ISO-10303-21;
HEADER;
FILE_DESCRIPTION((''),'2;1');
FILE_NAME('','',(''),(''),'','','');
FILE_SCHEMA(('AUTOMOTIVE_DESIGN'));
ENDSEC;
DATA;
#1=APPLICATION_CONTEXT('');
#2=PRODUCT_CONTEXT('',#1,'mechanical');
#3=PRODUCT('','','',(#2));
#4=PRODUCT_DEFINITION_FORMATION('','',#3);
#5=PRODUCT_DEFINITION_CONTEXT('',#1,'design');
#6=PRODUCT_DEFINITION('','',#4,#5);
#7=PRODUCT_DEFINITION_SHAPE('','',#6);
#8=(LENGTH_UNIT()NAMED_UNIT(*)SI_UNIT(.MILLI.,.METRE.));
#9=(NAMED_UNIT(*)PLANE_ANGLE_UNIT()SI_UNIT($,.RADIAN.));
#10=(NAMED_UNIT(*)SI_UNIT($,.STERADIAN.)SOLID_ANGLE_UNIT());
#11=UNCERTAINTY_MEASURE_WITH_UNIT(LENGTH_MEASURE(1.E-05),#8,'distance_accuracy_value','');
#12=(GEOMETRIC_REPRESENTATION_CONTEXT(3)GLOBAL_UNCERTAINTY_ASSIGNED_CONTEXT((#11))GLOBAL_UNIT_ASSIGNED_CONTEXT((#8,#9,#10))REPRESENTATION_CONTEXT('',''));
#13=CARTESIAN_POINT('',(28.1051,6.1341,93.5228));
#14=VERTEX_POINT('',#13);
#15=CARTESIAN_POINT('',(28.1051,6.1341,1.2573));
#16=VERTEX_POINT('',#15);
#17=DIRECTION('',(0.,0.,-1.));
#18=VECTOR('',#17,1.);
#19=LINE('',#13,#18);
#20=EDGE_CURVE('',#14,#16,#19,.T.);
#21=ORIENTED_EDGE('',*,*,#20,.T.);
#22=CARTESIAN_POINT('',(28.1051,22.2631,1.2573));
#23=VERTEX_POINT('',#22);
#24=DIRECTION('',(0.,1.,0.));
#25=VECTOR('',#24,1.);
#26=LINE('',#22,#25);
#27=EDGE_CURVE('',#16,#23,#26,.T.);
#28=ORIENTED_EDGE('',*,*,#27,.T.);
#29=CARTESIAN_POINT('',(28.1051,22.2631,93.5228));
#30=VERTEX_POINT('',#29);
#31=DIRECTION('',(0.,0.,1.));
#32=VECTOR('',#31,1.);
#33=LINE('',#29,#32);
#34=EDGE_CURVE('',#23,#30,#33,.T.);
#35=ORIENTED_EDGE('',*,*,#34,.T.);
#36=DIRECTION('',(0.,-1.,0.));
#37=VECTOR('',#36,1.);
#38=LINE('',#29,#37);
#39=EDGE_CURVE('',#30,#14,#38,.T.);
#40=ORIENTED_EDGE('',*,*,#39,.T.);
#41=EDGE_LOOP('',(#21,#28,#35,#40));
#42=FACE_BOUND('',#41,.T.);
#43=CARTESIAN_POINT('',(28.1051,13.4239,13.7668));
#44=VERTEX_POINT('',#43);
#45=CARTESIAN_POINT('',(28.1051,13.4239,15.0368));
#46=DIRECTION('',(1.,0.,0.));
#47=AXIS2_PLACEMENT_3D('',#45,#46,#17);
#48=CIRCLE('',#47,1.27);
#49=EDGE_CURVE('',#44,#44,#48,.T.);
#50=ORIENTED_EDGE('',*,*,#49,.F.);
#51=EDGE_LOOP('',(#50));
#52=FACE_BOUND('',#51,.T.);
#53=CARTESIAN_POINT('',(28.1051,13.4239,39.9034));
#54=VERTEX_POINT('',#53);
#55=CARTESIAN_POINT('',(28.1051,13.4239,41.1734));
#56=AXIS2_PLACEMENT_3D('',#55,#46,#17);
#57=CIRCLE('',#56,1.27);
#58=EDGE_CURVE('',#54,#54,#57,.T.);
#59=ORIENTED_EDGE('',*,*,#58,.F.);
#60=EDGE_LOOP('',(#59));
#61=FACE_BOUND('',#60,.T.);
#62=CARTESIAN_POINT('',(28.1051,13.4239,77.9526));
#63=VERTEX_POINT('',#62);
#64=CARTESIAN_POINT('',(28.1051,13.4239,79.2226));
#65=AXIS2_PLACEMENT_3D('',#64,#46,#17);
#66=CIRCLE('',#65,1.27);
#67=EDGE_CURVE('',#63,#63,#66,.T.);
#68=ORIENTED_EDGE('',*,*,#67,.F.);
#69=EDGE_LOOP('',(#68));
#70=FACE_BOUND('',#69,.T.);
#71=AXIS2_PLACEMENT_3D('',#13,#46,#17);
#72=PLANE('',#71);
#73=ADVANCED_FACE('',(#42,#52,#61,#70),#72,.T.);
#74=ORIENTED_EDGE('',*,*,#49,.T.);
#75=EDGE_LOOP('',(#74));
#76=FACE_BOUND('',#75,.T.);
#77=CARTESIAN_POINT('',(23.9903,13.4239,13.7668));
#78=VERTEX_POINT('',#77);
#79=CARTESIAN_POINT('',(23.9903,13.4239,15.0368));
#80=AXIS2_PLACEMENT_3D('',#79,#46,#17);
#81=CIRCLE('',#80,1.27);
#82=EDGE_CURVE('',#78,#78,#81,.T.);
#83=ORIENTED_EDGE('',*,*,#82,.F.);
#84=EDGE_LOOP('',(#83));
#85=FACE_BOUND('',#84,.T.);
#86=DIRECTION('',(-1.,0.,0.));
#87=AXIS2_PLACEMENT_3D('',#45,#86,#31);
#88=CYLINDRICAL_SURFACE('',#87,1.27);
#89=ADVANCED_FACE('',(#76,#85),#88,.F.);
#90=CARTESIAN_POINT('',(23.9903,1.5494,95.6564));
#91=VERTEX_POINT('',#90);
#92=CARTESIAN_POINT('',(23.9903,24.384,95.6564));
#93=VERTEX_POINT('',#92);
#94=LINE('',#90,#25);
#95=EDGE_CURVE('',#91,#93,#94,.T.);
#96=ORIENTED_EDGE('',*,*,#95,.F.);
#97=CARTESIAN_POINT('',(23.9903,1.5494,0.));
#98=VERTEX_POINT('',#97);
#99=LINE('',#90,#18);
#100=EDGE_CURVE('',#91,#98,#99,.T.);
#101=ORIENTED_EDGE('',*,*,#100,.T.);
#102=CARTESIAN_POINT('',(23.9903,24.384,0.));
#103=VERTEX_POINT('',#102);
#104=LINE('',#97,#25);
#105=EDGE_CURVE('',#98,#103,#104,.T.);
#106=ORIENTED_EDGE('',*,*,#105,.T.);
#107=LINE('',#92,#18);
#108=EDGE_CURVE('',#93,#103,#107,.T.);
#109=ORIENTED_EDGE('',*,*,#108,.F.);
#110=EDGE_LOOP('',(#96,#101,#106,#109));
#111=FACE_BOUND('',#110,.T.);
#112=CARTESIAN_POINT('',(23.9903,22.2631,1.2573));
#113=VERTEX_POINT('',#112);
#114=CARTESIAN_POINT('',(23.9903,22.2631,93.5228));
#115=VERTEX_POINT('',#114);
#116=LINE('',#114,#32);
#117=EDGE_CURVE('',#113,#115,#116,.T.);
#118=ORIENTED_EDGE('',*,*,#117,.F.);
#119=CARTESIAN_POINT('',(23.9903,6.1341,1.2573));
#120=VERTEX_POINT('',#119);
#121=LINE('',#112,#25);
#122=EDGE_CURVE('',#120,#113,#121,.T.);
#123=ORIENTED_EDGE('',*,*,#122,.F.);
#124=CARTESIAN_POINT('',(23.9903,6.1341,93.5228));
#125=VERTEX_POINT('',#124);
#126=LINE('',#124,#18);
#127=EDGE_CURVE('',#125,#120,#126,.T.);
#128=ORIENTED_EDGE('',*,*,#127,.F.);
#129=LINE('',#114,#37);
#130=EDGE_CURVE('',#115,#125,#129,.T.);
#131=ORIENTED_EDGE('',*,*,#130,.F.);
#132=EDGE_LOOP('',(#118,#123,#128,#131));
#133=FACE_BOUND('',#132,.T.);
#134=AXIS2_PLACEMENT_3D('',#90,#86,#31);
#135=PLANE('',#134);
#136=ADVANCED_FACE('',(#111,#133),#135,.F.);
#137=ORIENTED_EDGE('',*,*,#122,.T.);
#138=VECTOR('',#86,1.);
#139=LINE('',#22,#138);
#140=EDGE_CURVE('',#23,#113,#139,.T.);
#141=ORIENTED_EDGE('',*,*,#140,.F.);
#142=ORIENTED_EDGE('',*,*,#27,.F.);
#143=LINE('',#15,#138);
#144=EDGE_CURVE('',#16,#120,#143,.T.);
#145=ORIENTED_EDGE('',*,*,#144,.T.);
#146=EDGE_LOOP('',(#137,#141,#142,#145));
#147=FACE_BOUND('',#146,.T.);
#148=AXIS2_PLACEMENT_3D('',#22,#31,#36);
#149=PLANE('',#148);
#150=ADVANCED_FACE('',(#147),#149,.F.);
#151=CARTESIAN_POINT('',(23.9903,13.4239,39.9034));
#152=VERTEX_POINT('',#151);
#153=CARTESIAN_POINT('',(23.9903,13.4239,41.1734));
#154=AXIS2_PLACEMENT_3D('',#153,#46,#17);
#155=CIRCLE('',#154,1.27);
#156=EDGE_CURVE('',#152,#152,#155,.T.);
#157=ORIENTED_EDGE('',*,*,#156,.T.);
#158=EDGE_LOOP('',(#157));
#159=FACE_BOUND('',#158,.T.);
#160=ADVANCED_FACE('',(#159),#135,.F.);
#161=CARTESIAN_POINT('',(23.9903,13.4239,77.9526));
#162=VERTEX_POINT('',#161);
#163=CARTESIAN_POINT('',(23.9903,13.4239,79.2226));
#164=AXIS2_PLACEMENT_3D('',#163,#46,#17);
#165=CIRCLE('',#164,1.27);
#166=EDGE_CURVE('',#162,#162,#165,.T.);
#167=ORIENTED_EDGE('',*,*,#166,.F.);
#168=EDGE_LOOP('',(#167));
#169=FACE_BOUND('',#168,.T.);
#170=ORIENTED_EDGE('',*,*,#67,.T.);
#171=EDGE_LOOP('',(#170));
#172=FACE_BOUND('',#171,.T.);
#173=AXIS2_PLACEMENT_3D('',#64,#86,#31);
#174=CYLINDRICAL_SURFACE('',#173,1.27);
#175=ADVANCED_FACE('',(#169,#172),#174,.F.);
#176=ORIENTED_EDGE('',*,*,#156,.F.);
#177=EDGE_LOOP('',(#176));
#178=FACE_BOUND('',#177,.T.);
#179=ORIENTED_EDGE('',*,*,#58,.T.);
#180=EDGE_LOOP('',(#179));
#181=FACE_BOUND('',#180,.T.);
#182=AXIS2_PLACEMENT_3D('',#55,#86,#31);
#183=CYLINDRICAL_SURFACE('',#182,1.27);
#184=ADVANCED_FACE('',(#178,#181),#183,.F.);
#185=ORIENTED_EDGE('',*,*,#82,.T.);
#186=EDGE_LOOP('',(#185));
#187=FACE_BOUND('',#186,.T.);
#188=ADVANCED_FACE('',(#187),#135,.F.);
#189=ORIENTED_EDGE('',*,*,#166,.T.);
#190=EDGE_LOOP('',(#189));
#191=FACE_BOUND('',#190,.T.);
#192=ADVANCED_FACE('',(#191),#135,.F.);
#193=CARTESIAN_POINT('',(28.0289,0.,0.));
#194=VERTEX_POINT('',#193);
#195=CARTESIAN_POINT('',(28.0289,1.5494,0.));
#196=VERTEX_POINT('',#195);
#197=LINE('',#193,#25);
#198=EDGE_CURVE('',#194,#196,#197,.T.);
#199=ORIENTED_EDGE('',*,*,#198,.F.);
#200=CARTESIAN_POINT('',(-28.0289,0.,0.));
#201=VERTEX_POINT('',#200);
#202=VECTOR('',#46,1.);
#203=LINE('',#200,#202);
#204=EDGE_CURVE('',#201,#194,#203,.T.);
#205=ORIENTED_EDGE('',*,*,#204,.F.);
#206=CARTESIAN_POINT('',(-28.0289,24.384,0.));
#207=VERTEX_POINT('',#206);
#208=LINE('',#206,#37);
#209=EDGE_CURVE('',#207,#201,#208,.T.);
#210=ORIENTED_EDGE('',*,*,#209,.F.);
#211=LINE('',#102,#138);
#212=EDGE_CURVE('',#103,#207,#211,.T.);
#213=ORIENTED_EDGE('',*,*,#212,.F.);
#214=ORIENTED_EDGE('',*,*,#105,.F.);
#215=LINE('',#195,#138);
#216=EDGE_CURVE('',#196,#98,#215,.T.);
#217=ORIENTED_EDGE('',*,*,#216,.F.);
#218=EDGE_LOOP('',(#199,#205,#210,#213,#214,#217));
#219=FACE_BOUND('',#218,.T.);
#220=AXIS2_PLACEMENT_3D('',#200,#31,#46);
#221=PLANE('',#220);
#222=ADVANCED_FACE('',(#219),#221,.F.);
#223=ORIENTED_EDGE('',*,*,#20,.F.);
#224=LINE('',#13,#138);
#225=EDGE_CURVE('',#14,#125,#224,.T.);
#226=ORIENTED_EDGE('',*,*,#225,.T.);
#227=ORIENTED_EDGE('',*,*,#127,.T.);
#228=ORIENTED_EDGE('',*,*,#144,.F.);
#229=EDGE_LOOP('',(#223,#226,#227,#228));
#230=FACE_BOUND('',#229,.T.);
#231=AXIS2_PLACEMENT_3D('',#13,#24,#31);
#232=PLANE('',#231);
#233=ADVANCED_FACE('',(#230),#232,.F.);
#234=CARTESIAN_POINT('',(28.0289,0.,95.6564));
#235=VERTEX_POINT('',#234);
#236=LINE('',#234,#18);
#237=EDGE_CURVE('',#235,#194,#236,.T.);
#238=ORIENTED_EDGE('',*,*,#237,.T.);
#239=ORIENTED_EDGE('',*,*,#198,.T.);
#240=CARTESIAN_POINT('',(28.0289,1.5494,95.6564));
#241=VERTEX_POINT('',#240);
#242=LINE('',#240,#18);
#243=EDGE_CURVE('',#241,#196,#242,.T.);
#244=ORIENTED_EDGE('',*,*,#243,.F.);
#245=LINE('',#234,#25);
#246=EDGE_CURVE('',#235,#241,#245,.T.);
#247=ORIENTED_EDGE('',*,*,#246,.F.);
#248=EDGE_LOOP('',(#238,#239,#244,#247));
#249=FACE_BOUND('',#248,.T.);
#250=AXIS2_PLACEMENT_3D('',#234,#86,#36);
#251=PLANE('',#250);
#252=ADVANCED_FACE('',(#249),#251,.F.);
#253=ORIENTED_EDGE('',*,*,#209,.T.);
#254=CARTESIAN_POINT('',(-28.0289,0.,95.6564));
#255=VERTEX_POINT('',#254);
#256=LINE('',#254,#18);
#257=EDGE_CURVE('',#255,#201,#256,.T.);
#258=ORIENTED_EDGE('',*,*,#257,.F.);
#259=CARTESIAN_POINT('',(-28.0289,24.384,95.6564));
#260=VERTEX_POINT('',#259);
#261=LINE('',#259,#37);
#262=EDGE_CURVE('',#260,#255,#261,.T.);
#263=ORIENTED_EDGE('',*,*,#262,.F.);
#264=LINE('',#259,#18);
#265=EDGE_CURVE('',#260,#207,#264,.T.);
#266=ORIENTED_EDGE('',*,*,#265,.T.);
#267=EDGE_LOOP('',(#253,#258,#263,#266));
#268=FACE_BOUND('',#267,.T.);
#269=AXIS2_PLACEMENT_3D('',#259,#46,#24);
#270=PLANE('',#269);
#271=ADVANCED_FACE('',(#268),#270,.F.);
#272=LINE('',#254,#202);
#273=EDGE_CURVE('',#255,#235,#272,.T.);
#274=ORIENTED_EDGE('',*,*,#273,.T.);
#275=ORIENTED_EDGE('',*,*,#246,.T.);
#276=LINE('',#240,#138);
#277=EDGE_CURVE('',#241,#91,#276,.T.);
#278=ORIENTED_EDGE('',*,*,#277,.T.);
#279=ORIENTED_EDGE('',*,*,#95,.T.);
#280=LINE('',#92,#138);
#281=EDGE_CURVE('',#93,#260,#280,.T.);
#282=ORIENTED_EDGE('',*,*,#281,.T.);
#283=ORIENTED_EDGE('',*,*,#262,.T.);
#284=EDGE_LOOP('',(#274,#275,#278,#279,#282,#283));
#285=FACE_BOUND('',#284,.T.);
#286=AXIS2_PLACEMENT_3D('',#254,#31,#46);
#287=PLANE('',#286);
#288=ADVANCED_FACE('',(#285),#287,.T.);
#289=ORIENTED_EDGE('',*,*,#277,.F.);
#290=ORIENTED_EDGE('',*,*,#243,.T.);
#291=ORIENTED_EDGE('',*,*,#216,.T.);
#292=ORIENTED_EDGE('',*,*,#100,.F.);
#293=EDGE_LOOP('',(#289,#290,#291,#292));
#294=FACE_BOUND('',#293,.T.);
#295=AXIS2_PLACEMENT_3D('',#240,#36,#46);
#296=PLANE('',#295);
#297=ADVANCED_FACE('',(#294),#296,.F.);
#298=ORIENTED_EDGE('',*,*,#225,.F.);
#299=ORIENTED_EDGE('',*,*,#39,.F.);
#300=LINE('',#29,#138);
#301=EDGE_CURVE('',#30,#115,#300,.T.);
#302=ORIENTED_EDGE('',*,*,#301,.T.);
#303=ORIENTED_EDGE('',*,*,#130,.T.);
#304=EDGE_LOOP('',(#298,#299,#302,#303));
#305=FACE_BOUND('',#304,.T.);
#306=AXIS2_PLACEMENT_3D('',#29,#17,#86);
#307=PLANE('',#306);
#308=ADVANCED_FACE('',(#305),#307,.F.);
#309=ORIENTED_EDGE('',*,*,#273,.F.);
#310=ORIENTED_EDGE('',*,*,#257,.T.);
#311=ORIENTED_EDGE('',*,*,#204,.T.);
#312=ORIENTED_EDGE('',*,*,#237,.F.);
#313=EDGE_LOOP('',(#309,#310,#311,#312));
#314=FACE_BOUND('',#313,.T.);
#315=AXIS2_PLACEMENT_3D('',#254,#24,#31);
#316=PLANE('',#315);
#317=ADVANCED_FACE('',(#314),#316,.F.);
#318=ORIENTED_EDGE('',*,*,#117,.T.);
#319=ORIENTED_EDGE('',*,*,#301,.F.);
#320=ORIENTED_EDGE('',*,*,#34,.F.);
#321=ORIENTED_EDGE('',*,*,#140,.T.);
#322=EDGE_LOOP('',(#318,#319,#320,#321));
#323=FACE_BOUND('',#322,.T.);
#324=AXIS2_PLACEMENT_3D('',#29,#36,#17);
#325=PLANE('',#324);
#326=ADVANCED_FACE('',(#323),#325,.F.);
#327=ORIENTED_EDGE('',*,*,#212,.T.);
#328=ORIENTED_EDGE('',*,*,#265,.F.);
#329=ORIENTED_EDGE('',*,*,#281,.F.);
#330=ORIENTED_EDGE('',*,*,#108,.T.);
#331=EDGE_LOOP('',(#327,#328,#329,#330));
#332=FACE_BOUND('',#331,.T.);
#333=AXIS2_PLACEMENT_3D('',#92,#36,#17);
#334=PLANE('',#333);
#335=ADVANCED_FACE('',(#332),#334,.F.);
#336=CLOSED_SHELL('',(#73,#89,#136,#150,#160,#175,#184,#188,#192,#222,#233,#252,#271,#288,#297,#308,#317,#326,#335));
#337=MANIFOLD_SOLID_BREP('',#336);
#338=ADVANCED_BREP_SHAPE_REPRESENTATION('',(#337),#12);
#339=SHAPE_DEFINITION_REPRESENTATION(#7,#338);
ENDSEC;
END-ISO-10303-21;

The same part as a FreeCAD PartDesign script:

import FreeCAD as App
import Part
import Sketcher
from FreeCAD import Vector
Q = App.Units.Quantity


def add_polygon(sketch, points):
    """Adds a closed chain of lines whose ends are joined by coincident constraints."""
    first, n = sketch.GeometryCount, len(points)
    for a, b in zip(points, points[1:] + points[:1]):
        sketch.addGeometry(Part.LineSegment(App.Vector(*a, 0), App.Vector(*b, 0)), False)
    for i in range(n):
        sketch.addConstraint(Sketcher.Constraint("Coincident", first + i, 2, first + (i + 1) % n, 1))

doc = App.newDocument("Part")
body = doc.addObject("PartDesign::Body", "Body")

sketch1 = doc.addObject("Sketcher::SketchObject", "Sketch")
body.addObject(sketch1)
sketch1.AttachmentSupport = (doc.XY_Plane, [""])
sketch1.MapMode = "FlatFace"
add_polygon(sketch1, [(-28, 0), (28, 0), (28, 1.5), (24, 1.5), (24, 24.4), (-28, 24.4)])
sketch1.addConstraint(Sketcher.Constraint("Horizontal", 0))
sketch1.addConstraint(Sketcher.Constraint("Vertical", 1))
sketch1.addConstraint(Sketcher.Constraint("Horizontal", 2))
sketch1.addConstraint(Sketcher.Constraint("Vertical", 3))
sketch1.addConstraint(Sketcher.Constraint("Horizontal", 4))
sketch1.addConstraint(Sketcher.Constraint("Vertical", 5))
sketch1.addConstraint(Sketcher.Constraint("Symmetric", 0, 2, 5, 2, -1, 1))
sketch1.addConstraint(Sketcher.Constraint("DistanceY", 5, 2, 5, 1, Q("0.96 in")))
sketch1.addConstraint(Sketcher.Constraint("DistanceX", 0, 1, 0, 2, Q("2.207 in")))
sketch1.addConstraint(Sketcher.Constraint("DistanceX", 2, 2, 2, 1, Q("0.159 in")))
sketch1.addConstraint(Sketcher.Constraint("DistanceY", 1, 1, 1, 2, Q("0.061 in")))
pad1 = doc.addObject("PartDesign::Pad", "Pad")
body.addObject(pad1)
pad1.Profile = sketch1
pad1.Length = Q("3.766 in")

sketch2 = doc.addObject("Sketcher::SketchObject", "Sketch001")
body.addObject(sketch2)
sketch2.AttachmentSupport = (doc.YZ_Plane, [""])
sketch2.MapMode = "FlatFace"
sketch2.AttachmentOffset = App.Placement(Vector(0, 0, 0.9445 * 25.4), App.Rotation())
add_polygon(sketch2, [(22.3, 93.5), (6.1, 93.5), (6.1, 1.3), (22.3, 1.3)])
sketch2.addGeometry(Part.Circle(Vector(13.4, 79.2, 0), Vector(0, 0, 1), 1.3), False)
sketch2.addGeometry(Part.Circle(Vector(13.4, 41.2, 0), Vector(0, 0, 1), 1.3), False)
sketch2.addGeometry(Part.Circle(Vector(13.4, 15, 0), Vector(0, 0, 1), 1.3), False)
sketch2.addConstraint(Sketcher.Constraint("Horizontal", 0))
sketch2.addConstraint(Sketcher.Constraint("Vertical", 1))
sketch2.addConstraint(Sketcher.Constraint("Horizontal", 2))
sketch2.addConstraint(Sketcher.Constraint("Vertical", 3))
sketch2.addConstraint(Sketcher.Constraint("Equal", 4, 5))
sketch2.addConstraint(Sketcher.Constraint("Equal", 5, 6))
sketch2.addConstraint(Sketcher.Constraint("Vertical", 4, 3, 5, 3))
sketch2.addConstraint(Sketcher.Constraint("Vertical", 5, 3, 6, 3))
sketch2.addConstraint(Sketcher.Constraint("Diameter", 4, Q("0.1 in")))
sketch2.addConstraint(Sketcher.Constraint("DistanceX", 0, 2, 0, 1, Q("0.635 in")))
sketch2.addConstraint(Sketcher.Constraint("DistanceY", 6, 3, 0, 2, Q("3.09 in")))
sketch2.addConstraint(Sketcher.Constraint("DistanceY", 1, 2, 1, 1, Q("3.6325 in")))
sketch2.addConstraint(Sketcher.Constraint("DistanceY", -1, 1, 4, 3, Q("3.119 in")))
sketch2.addConstraint(Sketcher.Constraint("DistanceY", -1, 1, 5, 3, Q("1.621 in")))
sketch2.addConstraint(Sketcher.Constraint("DistanceY", -1, 1, 6, 3, Q("0.592 in")))
sketch2.addConstraint(Sketcher.Constraint("DistanceX", 0, 2, 4, 3, Q("0.287 in")))
sketch2.addConstraint(Sketcher.Constraint("DistanceX", -1, 1, 4, 3, Q("0.5285 in")))
pad2 = doc.addObject("PartDesign::Pad", "Pad001")
body.addObject(pad2)
pad2.Profile = sketch2
pad2.Length = Q("0.162 in")

doc.recompute()
